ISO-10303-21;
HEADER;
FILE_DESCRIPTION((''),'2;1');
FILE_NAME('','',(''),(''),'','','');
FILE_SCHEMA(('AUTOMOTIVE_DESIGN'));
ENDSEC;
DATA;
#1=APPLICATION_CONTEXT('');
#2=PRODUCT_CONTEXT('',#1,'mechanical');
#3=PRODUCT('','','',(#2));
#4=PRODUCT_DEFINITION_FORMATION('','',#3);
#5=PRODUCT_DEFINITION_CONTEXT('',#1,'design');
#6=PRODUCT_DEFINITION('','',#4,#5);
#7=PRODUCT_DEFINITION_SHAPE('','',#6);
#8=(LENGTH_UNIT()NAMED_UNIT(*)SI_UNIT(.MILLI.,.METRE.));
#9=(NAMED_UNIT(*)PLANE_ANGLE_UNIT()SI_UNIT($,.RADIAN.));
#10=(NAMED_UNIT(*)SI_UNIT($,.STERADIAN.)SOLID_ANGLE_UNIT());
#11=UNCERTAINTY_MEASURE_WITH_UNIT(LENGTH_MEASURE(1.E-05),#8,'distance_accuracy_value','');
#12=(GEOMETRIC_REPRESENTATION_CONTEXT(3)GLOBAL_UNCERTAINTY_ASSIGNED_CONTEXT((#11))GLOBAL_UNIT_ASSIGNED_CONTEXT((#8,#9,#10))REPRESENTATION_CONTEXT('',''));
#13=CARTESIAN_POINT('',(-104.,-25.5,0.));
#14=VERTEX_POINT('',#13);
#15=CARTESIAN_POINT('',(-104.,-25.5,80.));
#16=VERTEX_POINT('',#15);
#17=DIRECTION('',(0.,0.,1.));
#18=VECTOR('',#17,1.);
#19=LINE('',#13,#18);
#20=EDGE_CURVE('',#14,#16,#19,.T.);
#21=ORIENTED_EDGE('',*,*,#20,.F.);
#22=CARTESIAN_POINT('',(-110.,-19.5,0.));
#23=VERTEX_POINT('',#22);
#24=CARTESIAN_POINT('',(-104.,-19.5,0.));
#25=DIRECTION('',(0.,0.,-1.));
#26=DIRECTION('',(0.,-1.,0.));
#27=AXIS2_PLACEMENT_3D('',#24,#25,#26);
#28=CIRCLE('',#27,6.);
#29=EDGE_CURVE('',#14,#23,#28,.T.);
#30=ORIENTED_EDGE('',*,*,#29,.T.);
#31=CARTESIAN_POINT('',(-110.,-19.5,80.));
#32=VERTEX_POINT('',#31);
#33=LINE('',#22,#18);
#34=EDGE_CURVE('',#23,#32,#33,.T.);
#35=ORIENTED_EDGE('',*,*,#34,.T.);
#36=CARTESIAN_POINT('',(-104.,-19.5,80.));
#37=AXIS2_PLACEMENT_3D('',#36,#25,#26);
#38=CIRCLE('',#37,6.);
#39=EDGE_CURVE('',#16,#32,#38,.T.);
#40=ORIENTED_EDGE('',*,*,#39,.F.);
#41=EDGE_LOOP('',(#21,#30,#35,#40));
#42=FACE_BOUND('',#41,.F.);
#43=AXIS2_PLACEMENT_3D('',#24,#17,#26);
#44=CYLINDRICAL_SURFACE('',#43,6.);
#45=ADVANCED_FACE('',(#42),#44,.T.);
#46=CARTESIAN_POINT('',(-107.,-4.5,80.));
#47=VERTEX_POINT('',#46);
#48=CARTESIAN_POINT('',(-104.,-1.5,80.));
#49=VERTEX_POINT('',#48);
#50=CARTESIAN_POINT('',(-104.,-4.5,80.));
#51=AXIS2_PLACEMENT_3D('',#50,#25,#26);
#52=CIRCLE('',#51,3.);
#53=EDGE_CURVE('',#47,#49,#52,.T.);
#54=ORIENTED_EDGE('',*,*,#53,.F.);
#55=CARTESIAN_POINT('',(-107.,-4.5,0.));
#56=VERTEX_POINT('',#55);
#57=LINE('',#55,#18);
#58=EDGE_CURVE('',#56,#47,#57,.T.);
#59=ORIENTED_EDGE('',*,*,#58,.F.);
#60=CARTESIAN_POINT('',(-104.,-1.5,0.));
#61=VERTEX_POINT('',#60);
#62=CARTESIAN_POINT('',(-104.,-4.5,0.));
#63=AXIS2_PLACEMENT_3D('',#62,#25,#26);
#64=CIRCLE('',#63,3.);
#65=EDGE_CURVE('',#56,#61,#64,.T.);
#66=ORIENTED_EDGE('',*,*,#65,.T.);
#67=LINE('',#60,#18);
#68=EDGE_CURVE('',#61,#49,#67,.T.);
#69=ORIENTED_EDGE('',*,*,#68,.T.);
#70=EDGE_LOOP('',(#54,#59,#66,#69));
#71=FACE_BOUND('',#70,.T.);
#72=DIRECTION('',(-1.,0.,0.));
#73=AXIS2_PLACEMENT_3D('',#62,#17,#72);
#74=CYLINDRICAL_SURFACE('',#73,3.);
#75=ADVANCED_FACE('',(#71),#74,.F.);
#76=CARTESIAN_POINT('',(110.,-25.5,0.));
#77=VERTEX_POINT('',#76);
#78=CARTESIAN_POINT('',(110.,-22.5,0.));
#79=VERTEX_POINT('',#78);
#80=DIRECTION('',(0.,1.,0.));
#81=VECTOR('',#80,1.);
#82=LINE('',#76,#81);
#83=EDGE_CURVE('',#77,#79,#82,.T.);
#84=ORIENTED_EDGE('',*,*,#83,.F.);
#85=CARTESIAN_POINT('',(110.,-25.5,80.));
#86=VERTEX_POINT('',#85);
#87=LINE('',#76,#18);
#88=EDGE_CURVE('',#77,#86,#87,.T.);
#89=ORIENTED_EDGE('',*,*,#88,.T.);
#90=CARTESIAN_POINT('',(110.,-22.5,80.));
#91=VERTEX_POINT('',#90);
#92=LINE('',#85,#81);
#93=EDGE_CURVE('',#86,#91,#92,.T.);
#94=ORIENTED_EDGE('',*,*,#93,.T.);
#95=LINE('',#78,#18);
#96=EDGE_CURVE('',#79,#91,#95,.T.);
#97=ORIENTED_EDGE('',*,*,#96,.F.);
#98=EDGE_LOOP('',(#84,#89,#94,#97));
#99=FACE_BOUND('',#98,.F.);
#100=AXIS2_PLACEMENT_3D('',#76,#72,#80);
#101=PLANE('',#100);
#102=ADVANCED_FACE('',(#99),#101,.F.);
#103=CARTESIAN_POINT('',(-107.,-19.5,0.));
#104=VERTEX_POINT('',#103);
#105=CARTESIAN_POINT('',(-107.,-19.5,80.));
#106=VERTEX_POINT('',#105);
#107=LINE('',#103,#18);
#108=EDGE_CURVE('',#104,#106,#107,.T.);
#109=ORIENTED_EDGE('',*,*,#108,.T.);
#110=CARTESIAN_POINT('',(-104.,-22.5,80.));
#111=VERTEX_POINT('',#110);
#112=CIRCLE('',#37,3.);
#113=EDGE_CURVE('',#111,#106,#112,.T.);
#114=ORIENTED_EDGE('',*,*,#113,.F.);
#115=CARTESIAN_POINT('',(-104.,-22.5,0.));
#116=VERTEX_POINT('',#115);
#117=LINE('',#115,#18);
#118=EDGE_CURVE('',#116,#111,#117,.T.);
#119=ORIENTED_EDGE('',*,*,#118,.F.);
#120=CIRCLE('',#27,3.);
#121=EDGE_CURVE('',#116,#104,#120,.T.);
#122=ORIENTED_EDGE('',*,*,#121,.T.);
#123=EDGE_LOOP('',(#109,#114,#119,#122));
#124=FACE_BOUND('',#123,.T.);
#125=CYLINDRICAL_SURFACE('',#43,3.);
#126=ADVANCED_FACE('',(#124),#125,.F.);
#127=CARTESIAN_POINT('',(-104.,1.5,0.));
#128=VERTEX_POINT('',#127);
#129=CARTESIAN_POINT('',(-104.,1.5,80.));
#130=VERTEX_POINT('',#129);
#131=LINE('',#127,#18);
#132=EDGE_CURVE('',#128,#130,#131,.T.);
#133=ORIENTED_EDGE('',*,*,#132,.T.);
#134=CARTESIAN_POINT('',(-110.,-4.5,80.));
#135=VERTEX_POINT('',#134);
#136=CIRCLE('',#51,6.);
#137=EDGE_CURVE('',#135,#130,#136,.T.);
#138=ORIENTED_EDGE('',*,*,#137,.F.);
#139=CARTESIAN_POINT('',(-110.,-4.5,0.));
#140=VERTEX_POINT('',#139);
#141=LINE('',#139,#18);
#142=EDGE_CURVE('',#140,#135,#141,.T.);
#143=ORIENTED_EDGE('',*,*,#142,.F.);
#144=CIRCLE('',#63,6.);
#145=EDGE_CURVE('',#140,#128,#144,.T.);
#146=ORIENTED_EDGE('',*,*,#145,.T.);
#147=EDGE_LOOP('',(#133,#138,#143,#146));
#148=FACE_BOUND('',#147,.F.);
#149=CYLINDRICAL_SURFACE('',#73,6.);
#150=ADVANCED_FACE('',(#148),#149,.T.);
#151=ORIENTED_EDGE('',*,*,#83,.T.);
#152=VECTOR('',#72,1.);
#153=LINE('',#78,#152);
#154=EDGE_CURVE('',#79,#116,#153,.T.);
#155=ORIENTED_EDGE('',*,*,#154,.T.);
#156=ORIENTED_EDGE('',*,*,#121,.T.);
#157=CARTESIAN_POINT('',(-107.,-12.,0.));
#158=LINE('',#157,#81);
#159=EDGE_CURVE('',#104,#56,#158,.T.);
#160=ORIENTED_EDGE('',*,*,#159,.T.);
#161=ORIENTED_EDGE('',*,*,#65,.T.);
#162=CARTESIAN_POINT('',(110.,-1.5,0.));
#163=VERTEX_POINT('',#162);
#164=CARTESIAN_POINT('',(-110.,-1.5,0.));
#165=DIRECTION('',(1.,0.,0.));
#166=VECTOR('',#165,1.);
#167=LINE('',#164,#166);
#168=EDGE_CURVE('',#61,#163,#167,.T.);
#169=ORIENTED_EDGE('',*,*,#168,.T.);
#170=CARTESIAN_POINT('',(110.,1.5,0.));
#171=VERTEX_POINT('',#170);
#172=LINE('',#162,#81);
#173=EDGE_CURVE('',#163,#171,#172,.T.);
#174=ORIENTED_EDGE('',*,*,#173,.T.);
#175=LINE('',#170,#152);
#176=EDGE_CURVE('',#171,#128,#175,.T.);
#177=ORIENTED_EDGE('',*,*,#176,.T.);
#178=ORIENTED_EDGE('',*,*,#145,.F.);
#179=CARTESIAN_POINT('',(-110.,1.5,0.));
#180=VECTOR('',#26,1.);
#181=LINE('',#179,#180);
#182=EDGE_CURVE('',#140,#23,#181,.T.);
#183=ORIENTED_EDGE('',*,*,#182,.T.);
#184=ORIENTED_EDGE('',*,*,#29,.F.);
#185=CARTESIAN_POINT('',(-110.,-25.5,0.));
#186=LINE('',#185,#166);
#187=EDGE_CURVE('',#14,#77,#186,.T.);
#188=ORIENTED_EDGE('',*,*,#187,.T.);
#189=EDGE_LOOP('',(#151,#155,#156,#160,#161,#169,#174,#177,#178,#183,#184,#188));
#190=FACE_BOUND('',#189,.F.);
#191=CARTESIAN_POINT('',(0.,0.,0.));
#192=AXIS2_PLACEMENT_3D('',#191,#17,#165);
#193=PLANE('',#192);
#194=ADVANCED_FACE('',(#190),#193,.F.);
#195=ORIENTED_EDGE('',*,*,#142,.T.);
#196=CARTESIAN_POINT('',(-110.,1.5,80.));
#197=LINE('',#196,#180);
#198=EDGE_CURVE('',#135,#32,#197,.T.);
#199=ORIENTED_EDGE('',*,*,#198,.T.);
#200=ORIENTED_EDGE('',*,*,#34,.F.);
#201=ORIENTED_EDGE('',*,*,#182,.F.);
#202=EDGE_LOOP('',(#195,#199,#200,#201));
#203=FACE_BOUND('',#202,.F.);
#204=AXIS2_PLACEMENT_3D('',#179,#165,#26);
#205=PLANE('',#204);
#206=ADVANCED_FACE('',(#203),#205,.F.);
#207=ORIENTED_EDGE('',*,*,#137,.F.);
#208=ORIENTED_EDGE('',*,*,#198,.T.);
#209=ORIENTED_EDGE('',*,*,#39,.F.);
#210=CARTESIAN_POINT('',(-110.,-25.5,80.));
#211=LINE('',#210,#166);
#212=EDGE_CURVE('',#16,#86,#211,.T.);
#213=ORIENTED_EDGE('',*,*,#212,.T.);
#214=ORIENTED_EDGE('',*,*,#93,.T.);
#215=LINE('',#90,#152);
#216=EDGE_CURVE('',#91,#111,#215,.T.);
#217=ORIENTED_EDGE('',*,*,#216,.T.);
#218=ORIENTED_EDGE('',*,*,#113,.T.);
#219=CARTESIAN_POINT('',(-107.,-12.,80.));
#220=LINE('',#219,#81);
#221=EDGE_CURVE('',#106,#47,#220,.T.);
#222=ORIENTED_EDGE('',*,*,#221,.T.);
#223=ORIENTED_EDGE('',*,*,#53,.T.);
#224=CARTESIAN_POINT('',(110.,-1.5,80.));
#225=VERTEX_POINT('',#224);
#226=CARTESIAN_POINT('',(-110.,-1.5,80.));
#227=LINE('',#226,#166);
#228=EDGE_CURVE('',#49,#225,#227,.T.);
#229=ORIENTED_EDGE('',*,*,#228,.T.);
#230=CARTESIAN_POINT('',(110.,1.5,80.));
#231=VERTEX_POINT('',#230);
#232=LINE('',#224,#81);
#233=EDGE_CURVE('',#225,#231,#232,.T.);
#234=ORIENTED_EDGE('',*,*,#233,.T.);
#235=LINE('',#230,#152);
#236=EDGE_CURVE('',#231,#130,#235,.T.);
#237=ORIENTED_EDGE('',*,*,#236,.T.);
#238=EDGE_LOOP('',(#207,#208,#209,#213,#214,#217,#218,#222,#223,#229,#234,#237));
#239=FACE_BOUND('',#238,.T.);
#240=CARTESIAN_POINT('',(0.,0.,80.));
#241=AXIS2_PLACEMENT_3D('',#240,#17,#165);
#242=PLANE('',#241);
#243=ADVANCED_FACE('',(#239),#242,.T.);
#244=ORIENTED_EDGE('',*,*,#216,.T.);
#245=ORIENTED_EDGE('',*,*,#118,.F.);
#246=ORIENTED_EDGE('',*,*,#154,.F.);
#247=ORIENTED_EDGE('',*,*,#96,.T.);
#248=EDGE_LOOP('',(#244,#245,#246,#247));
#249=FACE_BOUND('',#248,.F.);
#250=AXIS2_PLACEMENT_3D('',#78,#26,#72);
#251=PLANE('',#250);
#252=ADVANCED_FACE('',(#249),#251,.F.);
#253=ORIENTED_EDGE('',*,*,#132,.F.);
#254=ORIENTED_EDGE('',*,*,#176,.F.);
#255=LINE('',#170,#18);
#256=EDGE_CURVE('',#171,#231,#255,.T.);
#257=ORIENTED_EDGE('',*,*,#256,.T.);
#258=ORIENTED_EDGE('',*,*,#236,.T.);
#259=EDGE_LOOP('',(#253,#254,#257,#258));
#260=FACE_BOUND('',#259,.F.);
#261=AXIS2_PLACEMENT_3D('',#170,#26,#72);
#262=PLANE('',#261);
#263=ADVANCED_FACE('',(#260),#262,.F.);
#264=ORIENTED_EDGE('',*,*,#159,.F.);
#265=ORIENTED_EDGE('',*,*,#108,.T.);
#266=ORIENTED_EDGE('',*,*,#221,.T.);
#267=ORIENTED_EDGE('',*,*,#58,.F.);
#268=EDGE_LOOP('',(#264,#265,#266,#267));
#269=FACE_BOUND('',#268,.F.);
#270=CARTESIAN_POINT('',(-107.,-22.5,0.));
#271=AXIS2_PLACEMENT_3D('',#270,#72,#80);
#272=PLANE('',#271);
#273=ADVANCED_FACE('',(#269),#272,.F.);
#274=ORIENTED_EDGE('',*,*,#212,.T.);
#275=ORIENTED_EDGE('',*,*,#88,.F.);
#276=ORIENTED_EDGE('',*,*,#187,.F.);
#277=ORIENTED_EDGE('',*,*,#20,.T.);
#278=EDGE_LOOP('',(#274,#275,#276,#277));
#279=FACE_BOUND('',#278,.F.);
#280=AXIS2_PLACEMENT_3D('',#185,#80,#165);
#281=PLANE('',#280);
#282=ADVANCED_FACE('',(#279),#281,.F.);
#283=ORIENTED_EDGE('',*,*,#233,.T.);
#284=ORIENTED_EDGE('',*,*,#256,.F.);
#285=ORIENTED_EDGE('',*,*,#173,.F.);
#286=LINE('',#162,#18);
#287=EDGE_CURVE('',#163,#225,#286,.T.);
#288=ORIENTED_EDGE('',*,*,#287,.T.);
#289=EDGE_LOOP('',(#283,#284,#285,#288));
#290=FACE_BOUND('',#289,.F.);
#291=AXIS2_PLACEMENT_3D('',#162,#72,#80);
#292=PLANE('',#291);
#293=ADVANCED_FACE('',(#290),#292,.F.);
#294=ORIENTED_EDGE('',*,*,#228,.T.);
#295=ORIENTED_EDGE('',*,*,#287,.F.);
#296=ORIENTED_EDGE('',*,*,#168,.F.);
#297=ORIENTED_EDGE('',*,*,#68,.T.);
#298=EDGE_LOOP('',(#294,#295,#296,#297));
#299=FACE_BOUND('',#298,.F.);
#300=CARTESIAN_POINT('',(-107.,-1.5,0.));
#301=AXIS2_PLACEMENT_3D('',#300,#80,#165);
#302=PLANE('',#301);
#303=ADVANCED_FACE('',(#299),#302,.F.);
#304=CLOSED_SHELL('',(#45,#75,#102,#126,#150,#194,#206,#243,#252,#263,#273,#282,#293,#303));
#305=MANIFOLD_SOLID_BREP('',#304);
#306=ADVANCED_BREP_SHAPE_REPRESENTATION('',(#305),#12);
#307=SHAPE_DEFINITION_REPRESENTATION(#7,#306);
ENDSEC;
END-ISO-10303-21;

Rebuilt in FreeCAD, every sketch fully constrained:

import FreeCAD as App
import Part
import Sketcher


def edges_at(feature, points):
    """Names of the edges that pass closest to the given points."""
    edges = feature.Shape.Edges
    near = lambda p: min(range(len(edges)), key=lambda i: edges[i].distToShape(Part.Vertex(*p))[0])
    return sorted({f"Edge{near(p) + 1}" for p in points})

doc = App.newDocument("Part")
body = doc.addObject("PartDesign::Body", "Body")

sketch1 = body.newObject("Sketcher::SketchObject", "Sketch")
sketch1.AttachmentSupport = (doc.getObject("XY_Plane"), [""])
sketch1.MapMode = "FlatFace"
sketch1.addGeometry([
    Part.LineSegment(App.Vector(-110, 1.5, 0), App.Vector(-110, -25.5, 0)),
    Part.LineSegment(App.Vector(-110, -25.5, 0), App.Vector(110, -25.5, 0)),
    Part.LineSegment(App.Vector(110, -25.5, 0), App.Vector(110, -22.5, 0)),
    Part.LineSegment(App.Vector(110, -22.5, 0), App.Vector(-107, -22.5, 0)),
    Part.LineSegment(App.Vector(-107, -22.5, 0), App.Vector(-107, -1.5, 0)),
    Part.LineSegment(App.Vector(-107, -1.5, 0), App.Vector(110, -1.5, 0)),
    Part.LineSegment(App.Vector(110, -1.5, 0), App.Vector(110, 1.5, 0)),
    Part.LineSegment(App.Vector(110, 1.5, 0), App.Vector(-110, 1.5, 0)),
], False)
sketch1.addConstraint([
    Sketcher.Constraint("Coincident", 0, 2, 1, 1),
    Sketcher.Constraint("Coincident", 1, 2, 2, 1),
    Sketcher.Constraint("Coincident", 2, 2, 3, 1),
    Sketcher.Constraint("Coincident", 3, 2, 4, 1),
    Sketcher.Constraint("Coincident", 4, 2, 5, 1),
    Sketcher.Constraint("Coincident", 5, 2, 6, 1),
    Sketcher.Constraint("Coincident", 6, 2, 7, 1),
    Sketcher.Constraint("Coincident", 7, 2, 0, 1),
    Sketcher.Constraint("Vertical", 0),
    Sketcher.Constraint("Horizontal", 1),
    Sketcher.Constraint("Vertical", 2),
    Sketcher.Constraint("Horizontal", 3),
    Sketcher.Constraint("Vertical", 4),
    Sketcher.Constraint("Horizontal", 5),
    Sketcher.Constraint("Vertical", 6),
    Sketcher.Constraint("Horizontal", 7),
    Sketcher.Constraint("Symmetric", 5, 2, 7, 2, -1, 1),
    Sketcher.Constraint("Vertical", 2, 2, 5, 2),
    Sketcher.Constraint("Equal", 2, 6),
    Sketcher.Constraint("DistanceX", 1, 1, 1, 2, 220.0),
    Sketcher.Constraint("DistanceX", 3, 2, 3, 1, 217.0),
    Sketcher.Constraint("DistanceY", 0, 2, 0, 1, 27.0),
    Sketcher.Constraint("DistanceY", 2, 1, 2, 2, 3.0),
])
pad1 = body.newObject("PartDesign::Pad", "Pad")
pad1.Profile = sketch1
pad1.Length = 80
doc.recompute()

fillet = body.newObject("PartDesign::Fillet", "Fillet")
fillet.Base = (pad1, edges_at(pad1, [(-107, -1.5, 40), (-107, -22.5, 40)]))
fillet.Radius = 3
doc.recompute()

fillet2 = body.newObject("PartDesign::Fillet", "Fillet001")
fillet2.Base = (fillet, edges_at(fillet, [(-110, -25.5, 40), (-110, 1.5, 40)]))
fillet2.Radius = 6

doc.recompute()
